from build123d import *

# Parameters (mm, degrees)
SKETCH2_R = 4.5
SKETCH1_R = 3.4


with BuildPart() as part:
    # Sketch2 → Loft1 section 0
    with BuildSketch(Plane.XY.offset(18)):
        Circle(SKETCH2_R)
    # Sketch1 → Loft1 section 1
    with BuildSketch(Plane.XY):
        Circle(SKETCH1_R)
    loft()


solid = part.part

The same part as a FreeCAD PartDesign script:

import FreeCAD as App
import Part
import Sketcher
from FreeCAD import Vector
Q = App.Units.Quantity

doc = App.newDocument("Part")
body = doc.addObject("PartDesign::Body", "Body")

# Sketch on XY plane
sketch1 = body.newObject("Sketcher::SketchObject", "Sketch")
sketch1.AttachmentSupport = (doc.getObject("XY_Plane"), [""])
sketch1.MapMode = "FlatFace"
sketch1.AttachmentOffset = App.Placement(Vector(0, 0, 18), App.Rotation())
sketch1.addGeometry(Part.Circle(Vector(0, 0, 0), Vector(0, 0, 1), 4.5), False)
sketch1.addConstraint(Sketcher.Constraint("Coincident", 0, 3, -1, 1))
sketch1.addConstraint(Sketcher.Constraint("Diameter", 0, Q("9 mm")))

# Sketch on XY plane
sketch2 = body.newObject("Sketcher::SketchObject", "Sketch001")
sketch2.AttachmentSupport = (doc.getObject("XY_Plane"), [""])
sketch2.MapMode = "FlatFace"
sketch2.addGeometry(Part.Circle(Vector(0, 0, 0), Vector(0, 0, 1), 3.4), False)
sketch2.addConstraint(Sketcher.Constraint("Coincident", 0, 3, -1, 1))
sketch2.addConstraint(Sketcher.Constraint("Diameter", 0, Q("6.8 mm")))

additiveloft = body.newObject("PartDesign::AdditiveLoft", "AdditiveLoft")
additiveloft.Profile = sketch1
additiveloft.Sections = [sketch2]

doc.recompute()
